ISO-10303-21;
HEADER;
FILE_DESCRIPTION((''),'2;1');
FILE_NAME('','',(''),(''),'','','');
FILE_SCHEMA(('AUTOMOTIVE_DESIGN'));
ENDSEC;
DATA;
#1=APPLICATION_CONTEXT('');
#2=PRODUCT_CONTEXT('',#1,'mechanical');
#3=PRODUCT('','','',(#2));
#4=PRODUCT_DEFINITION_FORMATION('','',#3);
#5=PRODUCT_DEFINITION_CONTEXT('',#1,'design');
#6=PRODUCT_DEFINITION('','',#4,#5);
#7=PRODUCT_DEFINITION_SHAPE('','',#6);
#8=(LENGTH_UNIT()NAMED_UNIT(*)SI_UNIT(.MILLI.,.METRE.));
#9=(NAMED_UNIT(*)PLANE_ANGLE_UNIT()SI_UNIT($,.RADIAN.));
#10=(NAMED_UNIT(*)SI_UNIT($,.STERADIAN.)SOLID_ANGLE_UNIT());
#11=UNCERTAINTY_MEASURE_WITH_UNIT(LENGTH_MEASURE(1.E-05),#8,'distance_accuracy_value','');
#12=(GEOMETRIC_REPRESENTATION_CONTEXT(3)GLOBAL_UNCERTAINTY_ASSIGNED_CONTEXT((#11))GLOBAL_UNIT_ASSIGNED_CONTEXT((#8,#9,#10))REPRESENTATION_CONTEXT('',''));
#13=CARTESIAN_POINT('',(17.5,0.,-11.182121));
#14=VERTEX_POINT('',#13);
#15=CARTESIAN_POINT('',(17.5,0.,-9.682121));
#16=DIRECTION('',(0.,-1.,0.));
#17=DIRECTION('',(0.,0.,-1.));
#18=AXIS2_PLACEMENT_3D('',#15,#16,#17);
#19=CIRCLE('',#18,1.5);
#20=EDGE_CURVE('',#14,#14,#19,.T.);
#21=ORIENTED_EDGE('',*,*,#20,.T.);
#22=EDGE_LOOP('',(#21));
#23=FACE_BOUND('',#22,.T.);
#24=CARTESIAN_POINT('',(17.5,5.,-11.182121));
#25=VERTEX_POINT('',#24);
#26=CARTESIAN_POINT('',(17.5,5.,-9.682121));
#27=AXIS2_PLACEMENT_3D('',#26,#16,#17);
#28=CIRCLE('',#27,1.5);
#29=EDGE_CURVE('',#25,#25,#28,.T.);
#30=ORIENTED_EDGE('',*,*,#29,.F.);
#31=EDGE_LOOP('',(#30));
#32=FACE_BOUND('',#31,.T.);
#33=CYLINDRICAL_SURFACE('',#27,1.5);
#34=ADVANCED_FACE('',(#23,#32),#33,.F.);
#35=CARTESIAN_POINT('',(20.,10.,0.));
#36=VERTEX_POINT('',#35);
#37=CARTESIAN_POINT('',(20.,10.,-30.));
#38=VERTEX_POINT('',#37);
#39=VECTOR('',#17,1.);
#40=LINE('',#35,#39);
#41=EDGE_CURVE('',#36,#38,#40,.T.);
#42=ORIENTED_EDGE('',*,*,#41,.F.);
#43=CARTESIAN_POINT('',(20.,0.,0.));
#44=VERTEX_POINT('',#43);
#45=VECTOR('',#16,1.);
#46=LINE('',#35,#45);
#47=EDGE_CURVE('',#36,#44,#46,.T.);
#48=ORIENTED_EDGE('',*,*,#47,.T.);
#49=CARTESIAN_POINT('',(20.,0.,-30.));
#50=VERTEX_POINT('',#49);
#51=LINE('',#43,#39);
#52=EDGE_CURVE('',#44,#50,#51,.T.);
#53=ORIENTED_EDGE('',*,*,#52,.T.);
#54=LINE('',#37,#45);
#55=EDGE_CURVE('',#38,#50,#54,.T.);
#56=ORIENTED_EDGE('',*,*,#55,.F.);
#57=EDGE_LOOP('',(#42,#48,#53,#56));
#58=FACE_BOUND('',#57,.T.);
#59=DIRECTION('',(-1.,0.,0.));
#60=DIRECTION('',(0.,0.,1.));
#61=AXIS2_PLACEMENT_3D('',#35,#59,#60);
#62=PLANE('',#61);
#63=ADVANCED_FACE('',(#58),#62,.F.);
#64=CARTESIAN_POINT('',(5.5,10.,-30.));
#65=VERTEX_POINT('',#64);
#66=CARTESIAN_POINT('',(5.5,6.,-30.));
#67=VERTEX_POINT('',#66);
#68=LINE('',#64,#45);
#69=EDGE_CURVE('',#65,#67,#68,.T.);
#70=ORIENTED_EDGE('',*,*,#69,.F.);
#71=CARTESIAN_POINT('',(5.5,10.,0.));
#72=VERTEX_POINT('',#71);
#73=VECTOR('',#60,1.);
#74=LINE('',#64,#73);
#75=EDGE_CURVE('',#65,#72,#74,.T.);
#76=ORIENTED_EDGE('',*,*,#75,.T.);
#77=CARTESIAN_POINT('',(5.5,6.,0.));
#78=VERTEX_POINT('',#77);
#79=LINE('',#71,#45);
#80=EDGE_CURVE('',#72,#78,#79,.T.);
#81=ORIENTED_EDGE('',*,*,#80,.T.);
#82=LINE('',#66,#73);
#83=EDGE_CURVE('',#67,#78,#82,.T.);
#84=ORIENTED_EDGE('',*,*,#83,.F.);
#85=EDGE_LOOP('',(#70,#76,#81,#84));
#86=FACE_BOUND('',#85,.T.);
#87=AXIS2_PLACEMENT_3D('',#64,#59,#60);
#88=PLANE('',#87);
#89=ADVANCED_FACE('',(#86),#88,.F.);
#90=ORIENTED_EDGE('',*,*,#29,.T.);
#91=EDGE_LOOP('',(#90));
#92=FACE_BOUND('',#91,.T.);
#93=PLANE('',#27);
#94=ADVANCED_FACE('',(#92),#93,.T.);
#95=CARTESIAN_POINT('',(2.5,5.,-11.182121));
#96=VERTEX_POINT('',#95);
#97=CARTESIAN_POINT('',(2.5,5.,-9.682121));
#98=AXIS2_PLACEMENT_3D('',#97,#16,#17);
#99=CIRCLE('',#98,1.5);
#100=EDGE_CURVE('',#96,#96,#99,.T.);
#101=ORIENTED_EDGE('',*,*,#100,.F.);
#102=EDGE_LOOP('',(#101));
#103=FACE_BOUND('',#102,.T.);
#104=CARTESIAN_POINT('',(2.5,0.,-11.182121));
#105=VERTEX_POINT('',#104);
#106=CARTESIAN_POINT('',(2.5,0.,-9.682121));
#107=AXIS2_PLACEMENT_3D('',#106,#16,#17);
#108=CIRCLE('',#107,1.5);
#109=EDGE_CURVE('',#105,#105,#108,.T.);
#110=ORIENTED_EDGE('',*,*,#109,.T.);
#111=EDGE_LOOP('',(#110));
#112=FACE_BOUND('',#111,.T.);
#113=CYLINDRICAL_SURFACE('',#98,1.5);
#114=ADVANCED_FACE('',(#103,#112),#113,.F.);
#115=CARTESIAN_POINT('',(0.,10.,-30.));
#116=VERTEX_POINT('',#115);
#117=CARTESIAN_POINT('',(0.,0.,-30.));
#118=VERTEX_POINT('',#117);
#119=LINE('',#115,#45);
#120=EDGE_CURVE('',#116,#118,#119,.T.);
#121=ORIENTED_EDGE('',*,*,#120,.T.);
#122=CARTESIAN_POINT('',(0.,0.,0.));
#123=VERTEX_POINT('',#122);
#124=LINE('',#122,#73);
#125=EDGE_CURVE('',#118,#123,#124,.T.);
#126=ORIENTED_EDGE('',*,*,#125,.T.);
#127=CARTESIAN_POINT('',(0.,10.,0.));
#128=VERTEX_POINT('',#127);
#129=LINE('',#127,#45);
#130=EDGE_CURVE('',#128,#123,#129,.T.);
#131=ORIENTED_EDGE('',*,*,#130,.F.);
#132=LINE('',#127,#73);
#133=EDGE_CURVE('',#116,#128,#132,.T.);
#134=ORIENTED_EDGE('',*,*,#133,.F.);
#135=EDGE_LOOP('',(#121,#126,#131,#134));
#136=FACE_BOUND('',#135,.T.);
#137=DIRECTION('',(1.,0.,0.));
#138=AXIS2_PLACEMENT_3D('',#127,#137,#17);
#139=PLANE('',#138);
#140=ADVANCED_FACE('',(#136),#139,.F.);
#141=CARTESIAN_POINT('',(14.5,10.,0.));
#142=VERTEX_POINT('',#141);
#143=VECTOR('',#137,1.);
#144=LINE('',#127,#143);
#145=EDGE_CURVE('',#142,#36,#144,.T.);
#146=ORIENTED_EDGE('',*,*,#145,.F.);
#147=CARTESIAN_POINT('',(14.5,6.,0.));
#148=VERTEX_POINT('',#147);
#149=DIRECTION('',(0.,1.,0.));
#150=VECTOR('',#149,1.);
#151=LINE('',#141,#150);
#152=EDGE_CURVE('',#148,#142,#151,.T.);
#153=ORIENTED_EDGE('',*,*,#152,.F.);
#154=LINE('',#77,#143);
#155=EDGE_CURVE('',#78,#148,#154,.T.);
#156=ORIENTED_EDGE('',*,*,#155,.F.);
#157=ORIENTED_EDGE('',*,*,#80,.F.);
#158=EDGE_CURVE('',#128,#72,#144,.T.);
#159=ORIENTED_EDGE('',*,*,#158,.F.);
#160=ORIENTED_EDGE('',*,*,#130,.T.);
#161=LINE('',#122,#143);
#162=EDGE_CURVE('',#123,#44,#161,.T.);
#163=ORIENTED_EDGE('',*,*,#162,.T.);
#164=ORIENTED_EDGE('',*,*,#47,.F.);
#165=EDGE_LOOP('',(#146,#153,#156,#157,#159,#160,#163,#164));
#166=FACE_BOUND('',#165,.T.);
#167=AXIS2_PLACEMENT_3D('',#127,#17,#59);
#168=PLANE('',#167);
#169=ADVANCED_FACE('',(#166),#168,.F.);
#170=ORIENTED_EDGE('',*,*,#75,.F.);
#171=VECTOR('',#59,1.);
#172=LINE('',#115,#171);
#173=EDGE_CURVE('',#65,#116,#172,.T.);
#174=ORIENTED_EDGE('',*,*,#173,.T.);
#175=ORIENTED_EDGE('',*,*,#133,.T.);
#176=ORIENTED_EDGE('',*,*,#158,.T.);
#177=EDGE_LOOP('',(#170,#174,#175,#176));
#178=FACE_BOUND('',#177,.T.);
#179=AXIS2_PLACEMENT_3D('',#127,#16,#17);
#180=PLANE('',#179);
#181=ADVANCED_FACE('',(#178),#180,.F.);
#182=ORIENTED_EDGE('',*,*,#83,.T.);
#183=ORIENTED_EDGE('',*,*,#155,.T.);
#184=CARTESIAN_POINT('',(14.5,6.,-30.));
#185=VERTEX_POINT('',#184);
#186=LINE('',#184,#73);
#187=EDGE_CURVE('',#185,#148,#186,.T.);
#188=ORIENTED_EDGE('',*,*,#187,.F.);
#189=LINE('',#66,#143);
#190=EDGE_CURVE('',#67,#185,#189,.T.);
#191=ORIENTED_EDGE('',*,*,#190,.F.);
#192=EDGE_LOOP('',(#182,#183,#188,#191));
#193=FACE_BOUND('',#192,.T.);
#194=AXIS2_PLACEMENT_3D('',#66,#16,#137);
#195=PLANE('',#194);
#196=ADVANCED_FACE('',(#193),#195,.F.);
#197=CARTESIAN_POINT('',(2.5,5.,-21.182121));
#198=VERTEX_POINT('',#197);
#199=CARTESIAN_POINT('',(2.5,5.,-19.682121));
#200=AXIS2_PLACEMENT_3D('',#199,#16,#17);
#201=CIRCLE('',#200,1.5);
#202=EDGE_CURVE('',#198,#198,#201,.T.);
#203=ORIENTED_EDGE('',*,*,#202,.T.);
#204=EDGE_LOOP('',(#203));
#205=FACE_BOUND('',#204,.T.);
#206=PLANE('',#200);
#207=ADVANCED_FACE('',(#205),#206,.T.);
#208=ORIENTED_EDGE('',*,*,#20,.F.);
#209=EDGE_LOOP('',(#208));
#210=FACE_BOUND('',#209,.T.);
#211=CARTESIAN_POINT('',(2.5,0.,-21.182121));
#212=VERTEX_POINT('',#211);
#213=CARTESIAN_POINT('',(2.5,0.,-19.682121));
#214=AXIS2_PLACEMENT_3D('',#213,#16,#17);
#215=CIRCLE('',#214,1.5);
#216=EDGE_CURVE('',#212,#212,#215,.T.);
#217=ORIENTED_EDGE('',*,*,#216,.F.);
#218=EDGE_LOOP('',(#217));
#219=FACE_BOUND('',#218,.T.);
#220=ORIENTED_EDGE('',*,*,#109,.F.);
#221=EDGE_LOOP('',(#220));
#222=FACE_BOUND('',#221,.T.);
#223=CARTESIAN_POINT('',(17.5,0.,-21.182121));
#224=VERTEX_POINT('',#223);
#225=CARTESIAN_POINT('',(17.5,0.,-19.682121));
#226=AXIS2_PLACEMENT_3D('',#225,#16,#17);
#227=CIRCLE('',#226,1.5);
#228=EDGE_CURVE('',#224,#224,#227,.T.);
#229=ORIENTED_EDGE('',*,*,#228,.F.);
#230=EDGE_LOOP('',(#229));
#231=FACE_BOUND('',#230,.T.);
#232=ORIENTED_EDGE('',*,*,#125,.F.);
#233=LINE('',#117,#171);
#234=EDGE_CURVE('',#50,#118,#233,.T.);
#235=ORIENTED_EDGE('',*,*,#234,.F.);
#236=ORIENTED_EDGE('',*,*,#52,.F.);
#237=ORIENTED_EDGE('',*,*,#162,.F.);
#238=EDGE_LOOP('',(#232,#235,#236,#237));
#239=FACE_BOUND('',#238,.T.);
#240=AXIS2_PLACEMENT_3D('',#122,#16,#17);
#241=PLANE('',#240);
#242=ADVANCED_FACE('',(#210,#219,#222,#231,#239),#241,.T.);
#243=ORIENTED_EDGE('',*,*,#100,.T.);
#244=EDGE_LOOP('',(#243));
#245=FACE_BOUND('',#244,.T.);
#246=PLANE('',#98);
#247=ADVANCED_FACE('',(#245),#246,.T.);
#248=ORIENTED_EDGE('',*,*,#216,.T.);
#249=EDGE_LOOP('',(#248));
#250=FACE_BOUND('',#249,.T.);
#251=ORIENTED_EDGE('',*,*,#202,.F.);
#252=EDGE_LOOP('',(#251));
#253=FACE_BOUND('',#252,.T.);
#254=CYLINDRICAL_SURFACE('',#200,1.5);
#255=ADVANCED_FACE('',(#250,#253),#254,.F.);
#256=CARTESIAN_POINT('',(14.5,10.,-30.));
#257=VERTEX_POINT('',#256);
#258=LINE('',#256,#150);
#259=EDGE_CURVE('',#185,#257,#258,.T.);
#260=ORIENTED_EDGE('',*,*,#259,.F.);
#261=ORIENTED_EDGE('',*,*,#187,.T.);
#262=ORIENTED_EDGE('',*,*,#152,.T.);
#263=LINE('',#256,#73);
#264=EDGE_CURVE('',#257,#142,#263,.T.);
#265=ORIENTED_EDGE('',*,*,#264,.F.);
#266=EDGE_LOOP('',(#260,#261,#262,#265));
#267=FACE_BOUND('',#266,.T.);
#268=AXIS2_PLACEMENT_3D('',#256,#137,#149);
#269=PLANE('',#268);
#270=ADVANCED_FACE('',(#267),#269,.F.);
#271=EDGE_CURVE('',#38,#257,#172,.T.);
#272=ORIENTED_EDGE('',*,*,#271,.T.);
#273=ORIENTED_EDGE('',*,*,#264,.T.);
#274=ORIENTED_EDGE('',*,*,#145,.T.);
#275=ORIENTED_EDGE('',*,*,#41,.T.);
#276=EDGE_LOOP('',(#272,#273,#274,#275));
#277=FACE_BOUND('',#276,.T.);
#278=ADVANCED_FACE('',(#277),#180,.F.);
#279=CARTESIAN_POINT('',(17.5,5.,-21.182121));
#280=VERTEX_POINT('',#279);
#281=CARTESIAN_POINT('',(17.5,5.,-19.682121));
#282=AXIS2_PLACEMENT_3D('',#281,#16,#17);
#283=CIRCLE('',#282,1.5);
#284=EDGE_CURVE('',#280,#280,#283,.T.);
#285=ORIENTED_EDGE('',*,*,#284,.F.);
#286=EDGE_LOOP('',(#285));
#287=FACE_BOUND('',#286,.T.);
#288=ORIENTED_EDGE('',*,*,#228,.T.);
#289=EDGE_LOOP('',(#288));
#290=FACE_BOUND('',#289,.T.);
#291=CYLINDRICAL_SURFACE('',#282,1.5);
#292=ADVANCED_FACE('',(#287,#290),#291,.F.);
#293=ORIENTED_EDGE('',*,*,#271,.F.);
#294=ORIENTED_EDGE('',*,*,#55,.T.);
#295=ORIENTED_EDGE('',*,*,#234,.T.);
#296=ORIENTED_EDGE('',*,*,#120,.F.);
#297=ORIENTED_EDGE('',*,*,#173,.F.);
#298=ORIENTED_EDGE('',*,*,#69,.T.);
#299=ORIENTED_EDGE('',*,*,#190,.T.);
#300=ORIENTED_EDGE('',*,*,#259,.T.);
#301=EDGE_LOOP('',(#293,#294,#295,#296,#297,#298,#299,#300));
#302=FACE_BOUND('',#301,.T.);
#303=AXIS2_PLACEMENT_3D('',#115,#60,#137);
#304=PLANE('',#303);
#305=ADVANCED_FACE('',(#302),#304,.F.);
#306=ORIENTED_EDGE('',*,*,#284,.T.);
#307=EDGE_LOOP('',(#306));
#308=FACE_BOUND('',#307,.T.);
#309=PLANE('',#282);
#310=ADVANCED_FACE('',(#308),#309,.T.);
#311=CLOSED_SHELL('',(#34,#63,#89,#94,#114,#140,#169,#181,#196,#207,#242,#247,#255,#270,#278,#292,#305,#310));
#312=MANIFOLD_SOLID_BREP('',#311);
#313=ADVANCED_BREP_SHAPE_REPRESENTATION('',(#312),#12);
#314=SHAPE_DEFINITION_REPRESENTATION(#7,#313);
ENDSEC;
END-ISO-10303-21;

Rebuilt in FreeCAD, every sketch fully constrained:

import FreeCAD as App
import Part
import Sketcher


def add_polygon(sketch, points):
    """Adds a closed chain of lines whose ends are joined by coincident constraints."""
    first, n = sketch.GeometryCount, len(points)
    for a, b in zip(points, points[1:] + points[:1]):
        sketch.addGeometry(Part.LineSegment(App.Vector(*a, 0), App.Vector(*b, 0)), False)
    for i in range(n):
        sketch.addConstraint(Sketcher.Constraint("Coincident", first + i, 2, first + (i + 1) % n, 1))

doc = App.newDocument("Part")
body = doc.addObject("PartDesign::Body", "Body")

# Sketch on XZ plane
sketch1 = body.newObject("Sketcher::SketchObject", "Sketch")
sketch1.AttachmentSupport = (doc.getObject("XZ_Plane"), [""])
sketch1.MapMode = "FlatFace"
add_polygon(sketch1, [(0, -30), (0, 0), (20, 0), (20, -30)])  # lines 0-3
sketch1.addConstraint([
    Sketcher.Constraint("Vertical", 0),
    Sketcher.Constraint("Horizontal", 1),
    Sketcher.Constraint("Vertical", 2),
    Sketcher.Constraint("Horizontal", 3),
    Sketcher.Constraint("Coincident", 0, 2, -1, 1),
    Sketcher.Constraint("DistanceX", 1, 1, 1, 2, 20.0),
    Sketcher.Constraint("DistanceY", 0, 1, 0, 2, 30.0),
])
pad1 = body.newObject("PartDesign::Pad", "Pad")
pad1.Profile = sketch1
pad1.Length = 10
pad1.Reversed = True

# Sketch on XY plane
sketch2 = body.newObject("Sketcher::SketchObject", "Sketch001")
sketch2.AttachmentSupport = (doc.getObject("XY_Plane"), [""])
sketch2.MapMode = "FlatFace"
add_polygon(sketch2, [(5.5, 10), (5.5, 6), (14.5, 6), (14.5, 10)])  # lines 0-3
sketch2.addConstraint([
    Sketcher.Constraint("Vertical", 0),
    Sketcher.Constraint("Horizontal", 1),
    Sketcher.Constraint("Vertical", 2),
    Sketcher.Constraint("Horizontal", 3),
    Sketcher.Constraint("DistanceX", 1, 1, 1, 2, 9.0),
    Sketcher.Constraint("DistanceY", 0, 2, 0, 1, 4.0),
    Sketcher.Constraint("DistanceY", -1, 1, 0, 2, 6.0),
    Sketcher.Constraint("DistanceX", -1, 1, 0, 2, 5.5),
])
pocket1 = body.newObject("PartDesign::Pocket", "Pocket")
pocket1.Profile = sketch2
pocket1.Type = "ThroughAll"

# Sketch on XZ plane
sketch3 = body.newObject("Sketcher::SketchObject", "Sketch002")
sketch3.AttachmentSupport = (doc.getObject("XZ_Plane"), [""])
sketch3.MapMode = "FlatFace"
sketch3.addGeometry([
    Part.Circle(App.Vector(2.5, -19.7, 0), App.Vector(0, 0, 1), 1.5),
    Part.Circle(App.Vector(17.5, -19.7, 0), App.Vector(0, 0, 1), 1.5),
    Part.Circle(App.Vector(17.5, -9.7, 0), App.Vector(0, 0, 1), 1.5),
    Part.Circle(App.Vector(2.5, -9.7, 0), App.Vector(0, 0, 1), 1.5),
], False)
sketch3.addConstraint([
    Sketcher.Constraint("Equal", 0, 1),
    Sketcher.Constraint("Equal", 1, 2),
    Sketcher.Constraint("Equal", 2, 3),
    Sketcher.Constraint("Horizontal", 0, 3, 1, 3),
    Sketcher.Constraint("Horizontal", 2, 3, 3, 3),
    Sketcher.Constraint("Vertical", 1, 3, 2, 3),
    Sketcher.Constraint("Vertical", 0, 3, 3, 3),
    Sketcher.Constraint("Diameter", 0, 3.0),
    Sketcher.Constraint("DistanceX", 0, 3, 1, 3, 15.0),
    Sketcher.Constraint("DistanceY", 1, 3, 2, 3, 10.0),
    Sketcher.Constraint("DistanceX", -1, 1, 0, 3, 2.5),
    Sketcher.Constraint("DistanceY", 0, 3, -1, 1, 19.682121),
])
pocket2 = body.newObject("PartDesign::Pocket", "Pocket001")
pocket2.Profile = sketch3
pocket2.Length = 5

doc.recompute()
